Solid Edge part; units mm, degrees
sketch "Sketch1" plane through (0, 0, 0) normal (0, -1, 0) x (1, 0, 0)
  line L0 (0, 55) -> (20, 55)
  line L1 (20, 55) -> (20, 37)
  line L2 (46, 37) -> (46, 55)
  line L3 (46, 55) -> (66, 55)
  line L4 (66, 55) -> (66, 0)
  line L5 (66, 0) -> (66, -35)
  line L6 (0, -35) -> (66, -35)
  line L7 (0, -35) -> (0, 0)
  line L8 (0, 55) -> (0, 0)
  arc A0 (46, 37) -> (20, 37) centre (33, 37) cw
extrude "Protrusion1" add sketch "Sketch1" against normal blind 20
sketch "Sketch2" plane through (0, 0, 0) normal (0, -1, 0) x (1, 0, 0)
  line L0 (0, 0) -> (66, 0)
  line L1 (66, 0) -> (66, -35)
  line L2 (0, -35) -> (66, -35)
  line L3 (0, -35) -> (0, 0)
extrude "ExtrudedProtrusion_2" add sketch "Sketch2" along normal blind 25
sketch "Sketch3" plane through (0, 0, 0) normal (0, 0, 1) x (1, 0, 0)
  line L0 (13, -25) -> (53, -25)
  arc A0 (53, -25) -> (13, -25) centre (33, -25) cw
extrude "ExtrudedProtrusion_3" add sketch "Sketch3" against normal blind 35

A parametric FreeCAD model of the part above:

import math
import FreeCAD as App
import Part
import Sketcher
from FreeCAD import Vector
Q = App.Units.Quantity


def add_polygon(sketch, points):
    """Adds a closed chain of lines whose ends are joined by coincident constraints."""
    first, n = sketch.GeometryCount, len(points)
    for a, b in zip(points, points[1:] + points[:1]):
        sketch.addGeometry(Part.LineSegment(App.Vector(*a, 0), App.Vector(*b, 0)), False)
    for i in range(n):
        sketch.addConstraint(Sketcher.Constraint("Coincident", first + i, 2, first + (i + 1) % n, 1))

doc = App.newDocument("Part")
body = doc.addObject("PartDesign::Body", "Body")

sketch1 = body.newObject("Sketcher::SketchObject", "Sketch")
sketch1.AttachmentSupport = (doc.getObject("XZ_Plane"), [""])
sketch1.MapMode = "FlatFace"
sketch1.addGeometry(Part.LineSegment(Vector(20, 55, 0), Vector(0, 55, 0)), False)
sketch1.addGeometry(Part.LineSegment(Vector(0, 55, 0), Vector(0, -35, 0)), False)
sketch1.addGeometry(Part.LineSegment(Vector(0, -35, 0), Vector(66, -35, 0)), False)
sketch1.addGeometry(Part.LineSegment(Vector(66, -35, 0), Vector(66, 55, 0)), False)
sketch1.addGeometry(Part.LineSegment(Vector(66, 55, 0), Vector(46, 55, 0)), False)
sketch1.addGeometry(Part.LineSegment(Vector(46, 55, 0), Vector(46, 37, 0)), False)
sketch1.addGeometry(Part.ArcOfCircle(Part.Circle(Vector(33, 37, 0), Vector(0, 0, 1), 13), math.radians(180), math.radians(360)), False)
sketch1.addGeometry(Part.LineSegment(Vector(20, 37, 0), Vector(20, 55, 0)), False)
sketch1.addConstraint(Sketcher.Constraint("Coincident", 0, 2, 1, 1))
sketch1.addConstraint(Sketcher.Constraint("Coincident", 1, 2, 2, 1))
sketch1.addConstraint(Sketcher.Constraint("Coincident", 2, 2, 3, 1))
sketch1.addConstraint(Sketcher.Constraint("Coincident", 3, 2, 4, 1))
sketch1.addConstraint(Sketcher.Constraint("Coincident", 4, 2, 5, 1))
sketch1.addConstraint(Sketcher.Constraint("Tangent", 5, 2, 6, 2))
sketch1.addConstraint(Sketcher.Constraint("Tangent", 6, 1, 7, 1))
sketch1.addConstraint(Sketcher.Constraint("Coincident", 7, 2, 0, 1))
sketch1.addConstraint(Sketcher.Constraint("Horizontal", 0))
sketch1.addConstraint(Sketcher.Constraint("Vertical", 1))
sketch1.addConstraint(Sketcher.Constraint("Horizontal", 2))
sketch1.addConstraint(Sketcher.Constraint("Vertical", 3))
sketch1.addConstraint(Sketcher.Constraint("Horizontal", 4))
sketch1.addConstraint(Sketcher.Constraint("Vertical", 5))
sketch1.addConstraint(Sketcher.Constraint("Vertical", 7))
sketch1.addConstraint(Sketcher.Constraint("PointOnObject", 0, 2, -2))
sketch1.addConstraint(Sketcher.Constraint("Horizontal", 0, 2, 3, 2))
sketch1.addConstraint(Sketcher.Constraint("Equal", 0, 4))
sketch1.addConstraint(Sketcher.Constraint("Radius", 6, Q("13 mm")))
sketch1.addConstraint(Sketcher.Constraint("DistanceX", 0, 2, 0, 1, Q("20 mm")))
sketch1.addConstraint(Sketcher.Constraint("DistanceY", 1, 2, 1, 1, Q("90 mm")))
sketch1.addConstraint(Sketcher.Constraint("DistanceY", 5, 2, 5, 1, Q("18 mm")))
sketch1.addConstraint(Sketcher.Constraint("DistanceY", -1, 1, 6, 3, Q("37 mm")))
pad1 = body.newObject("PartDesign::Pad", "Pad")
pad1.Profile = sketch1
pad1.Length = 20
pad1.Reversed = True

sketch2 = body.newObject("Sketcher::SketchObject", "Sketch001")
sketch2.AttachmentSupport = (doc.getObject("XZ_Plane"), [""])
sketch2.MapMode = "FlatFace"
add_polygon(sketch2, [(66, 0), (0, 0), (0, -35), (66, -35)])
sketch2.addConstraint(Sketcher.Constraint("Horizontal", 0))
sketch2.addConstraint(Sketcher.Constraint("Vertical", 1))
sketch2.addConstraint(Sketcher.Constraint("Horizontal", 2))
sketch2.addConstraint(Sketcher.Constraint("Vertical", 3))
sketch2.addConstraint(Sketcher.Constraint("Coincident", 0, 2, -1, 1))
sketch2.addConstraint(Sketcher.Constraint("DistanceX", 0, 2, 0, 1, Q("66 mm")))
sketch2.addConstraint(Sketcher.Constraint("DistanceY", 1, 2, 1, 1, Q("35 mm")))
pad2 = body.newObject("PartDesign::Pad", "Pad001")
pad2.Profile = sketch2
pad2.Length = 25

sketch3 = body.newObject("Sketcher::SketchObject", "Sketch002")
sketch3.AttachmentSupport = (doc.getObject("XY_Plane"), [""])
sketch3.MapMode = "FlatFace"
sketch3.addGeometry(Part.LineSegment(Vector(53, -25, 0), Vector(13, -25, 0)), False)
sketch3.addGeometry(Part.ArcOfCircle(Part.Circle(Vector(33, -25, 0), Vector(0, 0, 1), 20), math.radians(180), math.radians(360)), False)
sketch3.addConstraint(Sketcher.Constraint("Coincident", 0, 1, 1, 2))
sketch3.addConstraint(Sketcher.Constraint("Coincident", 1, 1, 0, 2))
sketch3.addConstraint(Sketcher.Constraint("Horizontal", 0))
sketch3.addConstraint(Sketcher.Constraint("Horizontal", 1, 3, 0, 1))
sketch3.addConstraint(Sketcher.Constraint("Radius", 1, Q("20 mm")))
sketch3.addConstraint(Sketcher.Constraint("DistanceX", -1, 1, 1, 3, Q("33 mm")))
sketch3.addConstraint(Sketcher.Constraint("DistanceY", 1, 3, -1, 1, Q("25 mm")))
pad3 = body.newObject("PartDesign::Pad", "Pad002")
pad3.Profile = sketch3
pad3.Length = 35
pad3.Reversed = True

doc.recompute()
